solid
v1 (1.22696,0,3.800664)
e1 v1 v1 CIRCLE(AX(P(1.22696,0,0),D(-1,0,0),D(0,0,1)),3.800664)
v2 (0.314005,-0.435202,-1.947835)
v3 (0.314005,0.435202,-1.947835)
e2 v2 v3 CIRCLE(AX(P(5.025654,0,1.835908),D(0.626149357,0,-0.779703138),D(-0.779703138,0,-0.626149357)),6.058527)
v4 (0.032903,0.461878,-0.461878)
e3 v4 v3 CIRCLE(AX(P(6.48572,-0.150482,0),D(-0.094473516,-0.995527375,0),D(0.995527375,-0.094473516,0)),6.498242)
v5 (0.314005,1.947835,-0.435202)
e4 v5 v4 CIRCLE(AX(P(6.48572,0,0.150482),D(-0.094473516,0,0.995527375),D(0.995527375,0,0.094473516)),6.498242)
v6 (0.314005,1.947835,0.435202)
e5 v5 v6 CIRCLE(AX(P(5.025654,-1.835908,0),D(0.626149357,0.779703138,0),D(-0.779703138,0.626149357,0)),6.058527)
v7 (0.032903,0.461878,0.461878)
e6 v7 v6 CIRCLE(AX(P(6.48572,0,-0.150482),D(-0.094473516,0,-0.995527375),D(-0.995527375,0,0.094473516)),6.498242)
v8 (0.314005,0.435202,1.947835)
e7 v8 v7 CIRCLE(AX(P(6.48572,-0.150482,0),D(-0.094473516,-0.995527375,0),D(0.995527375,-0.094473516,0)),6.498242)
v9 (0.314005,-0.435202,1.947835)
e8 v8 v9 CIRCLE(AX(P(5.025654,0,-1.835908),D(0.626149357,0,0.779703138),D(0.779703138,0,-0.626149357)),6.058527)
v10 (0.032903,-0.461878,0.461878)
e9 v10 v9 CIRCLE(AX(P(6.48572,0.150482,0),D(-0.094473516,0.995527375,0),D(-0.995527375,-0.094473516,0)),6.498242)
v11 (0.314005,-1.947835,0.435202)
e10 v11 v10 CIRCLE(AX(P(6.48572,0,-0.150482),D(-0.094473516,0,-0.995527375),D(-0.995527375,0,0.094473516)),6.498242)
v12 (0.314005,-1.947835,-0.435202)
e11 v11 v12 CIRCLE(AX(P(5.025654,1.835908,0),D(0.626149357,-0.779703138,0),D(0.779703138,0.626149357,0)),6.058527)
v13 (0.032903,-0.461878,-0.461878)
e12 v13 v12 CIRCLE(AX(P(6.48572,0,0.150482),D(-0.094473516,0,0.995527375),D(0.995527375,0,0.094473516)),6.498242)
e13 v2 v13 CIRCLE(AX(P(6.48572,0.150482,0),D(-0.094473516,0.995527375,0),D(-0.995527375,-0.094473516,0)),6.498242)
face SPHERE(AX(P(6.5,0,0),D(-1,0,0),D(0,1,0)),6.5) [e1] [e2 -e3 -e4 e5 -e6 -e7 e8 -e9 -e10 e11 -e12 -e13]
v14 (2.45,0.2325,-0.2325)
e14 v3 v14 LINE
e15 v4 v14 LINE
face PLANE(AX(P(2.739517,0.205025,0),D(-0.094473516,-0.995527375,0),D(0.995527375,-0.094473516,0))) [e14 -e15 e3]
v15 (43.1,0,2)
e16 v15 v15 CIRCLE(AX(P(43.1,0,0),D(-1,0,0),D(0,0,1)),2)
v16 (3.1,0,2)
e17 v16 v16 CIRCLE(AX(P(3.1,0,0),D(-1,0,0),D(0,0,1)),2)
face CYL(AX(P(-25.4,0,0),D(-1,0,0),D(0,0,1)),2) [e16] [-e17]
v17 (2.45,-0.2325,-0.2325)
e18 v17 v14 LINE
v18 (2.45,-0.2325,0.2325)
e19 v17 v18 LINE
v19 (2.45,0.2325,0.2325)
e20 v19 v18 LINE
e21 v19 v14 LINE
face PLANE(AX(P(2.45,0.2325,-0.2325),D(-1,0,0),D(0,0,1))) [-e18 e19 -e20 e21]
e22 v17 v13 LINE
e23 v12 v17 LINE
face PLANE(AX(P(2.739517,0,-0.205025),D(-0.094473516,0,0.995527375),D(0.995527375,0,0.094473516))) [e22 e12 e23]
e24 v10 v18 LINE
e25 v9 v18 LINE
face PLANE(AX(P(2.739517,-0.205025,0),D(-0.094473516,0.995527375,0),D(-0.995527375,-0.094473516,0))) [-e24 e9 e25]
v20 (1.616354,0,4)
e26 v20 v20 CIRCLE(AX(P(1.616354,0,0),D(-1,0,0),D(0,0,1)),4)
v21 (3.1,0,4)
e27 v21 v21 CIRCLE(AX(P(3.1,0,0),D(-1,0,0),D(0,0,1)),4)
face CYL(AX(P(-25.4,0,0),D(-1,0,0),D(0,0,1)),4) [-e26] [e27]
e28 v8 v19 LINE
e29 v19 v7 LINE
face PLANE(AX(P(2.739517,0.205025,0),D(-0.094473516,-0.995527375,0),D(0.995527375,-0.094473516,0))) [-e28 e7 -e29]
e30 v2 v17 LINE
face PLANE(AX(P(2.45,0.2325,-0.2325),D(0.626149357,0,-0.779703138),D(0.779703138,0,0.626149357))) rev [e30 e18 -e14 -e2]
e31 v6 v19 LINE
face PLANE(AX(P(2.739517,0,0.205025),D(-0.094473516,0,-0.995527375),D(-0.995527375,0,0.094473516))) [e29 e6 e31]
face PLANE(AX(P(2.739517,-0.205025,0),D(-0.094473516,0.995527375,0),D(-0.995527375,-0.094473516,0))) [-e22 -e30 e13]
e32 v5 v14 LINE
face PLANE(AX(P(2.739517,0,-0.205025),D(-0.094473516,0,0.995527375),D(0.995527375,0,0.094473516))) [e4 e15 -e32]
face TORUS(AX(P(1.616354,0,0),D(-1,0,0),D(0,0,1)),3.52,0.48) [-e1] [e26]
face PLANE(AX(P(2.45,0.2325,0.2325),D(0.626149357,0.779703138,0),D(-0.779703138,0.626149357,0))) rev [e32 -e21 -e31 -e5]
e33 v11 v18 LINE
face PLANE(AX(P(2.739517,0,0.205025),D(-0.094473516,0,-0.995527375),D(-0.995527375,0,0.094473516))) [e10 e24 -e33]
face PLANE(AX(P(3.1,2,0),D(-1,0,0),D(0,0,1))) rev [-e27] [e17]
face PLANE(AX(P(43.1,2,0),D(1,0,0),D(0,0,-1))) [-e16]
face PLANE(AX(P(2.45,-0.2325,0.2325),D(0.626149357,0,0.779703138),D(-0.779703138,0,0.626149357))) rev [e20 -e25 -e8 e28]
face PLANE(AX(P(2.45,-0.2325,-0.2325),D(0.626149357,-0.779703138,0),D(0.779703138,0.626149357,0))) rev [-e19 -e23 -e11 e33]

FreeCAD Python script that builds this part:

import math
import FreeCAD as App
import Part
import Sketcher


def add_polygon(sketch, points):
    """Adds a closed chain of lines whose ends are joined by coincident constraints."""
    first, n = sketch.GeometryCount, len(points)
    for a, b in zip(points, points[1:] + points[:1]):
        sketch.addGeometry(Part.LineSegment(App.Vector(*a, 0), App.Vector(*b, 0)), False)
    for i in range(n):
        sketch.addConstraint(Sketcher.Constraint("Coincident", first + i, 2, first + (i + 1) % n, 1))

doc = App.newDocument("Part")
body = doc.addObject("PartDesign::Body", "Body")

# Sketch on XY plane
sketch1 = body.newObject("Sketcher::SketchObject", "Sketch")
sketch1.AttachmentSupport = (doc.getObject("XY_Plane"), [""])
sketch1.MapMode = "FlatFace"
sketch1.addGeometry([
    Part.LineSegment(App.Vector(3.1, 2, 0), App.Vector(3.1, 4, 0)),  # 0
    Part.LineSegment(App.Vector(3.1, 4, 0), App.Vector(1.62, 4, 0)),  # 1
    Part.ArcOfCircle(Part.Circle(App.Vector(1.62, 3.52, 0), App.Vector(0, 0, 1), 0.48), math.radians(90), math.radians(144)),  # 2
    Part.ArcOfCircle(Part.Circle(App.Vector(6.5, 0, 0), App.Vector(0, 0, 1), 6.5), math.radians(144), math.radians(180)),  # 3
    Part.LineSegment(App.Vector(0, 0, 0), App.Vector(43.1, 0, 0)),  # 4
    Part.LineSegment(App.Vector(43.1, 0, 0), App.Vector(43.1, 2, 0)),  # 5
    Part.LineSegment(App.Vector(43.1, 2, 0), App.Vector(3.1, 2, 0)),  # 6
], False)
sketch1.addConstraint([
    Sketcher.Constraint("Coincident", 0, 2, 1, 1),
    Sketcher.Constraint("Tangent", 1, 2, 2, 1),
    Sketcher.Constraint("Tangent", 2, 2, 3, 1),
    Sketcher.Constraint("Coincident", 3, 2, 4, 1),
    Sketcher.Constraint("Coincident", 4, 2, 5, 1),
    Sketcher.Constraint("Coincident", 5, 2, 6, 1),
    Sketcher.Constraint("Coincident", 6, 2, 0, 1),
    Sketcher.Constraint("Vertical", 0),
    Sketcher.Constraint("Horizontal", 1),
    Sketcher.Constraint("Horizontal", 4),
    Sketcher.Constraint("Vertical", 5),
    Sketcher.Constraint("Horizontal", 6),
    Sketcher.Constraint("Coincident", 3, 2, -1, 1),
    Sketcher.Constraint("PointOnObject", 3, 3, -1),
    Sketcher.Constraint("Equal", 0, 5),
    Sketcher.Constraint("Radius", 3, 6.5),
    Sketcher.Constraint("DistanceX", 6, 2, 6, 1, 40.0),
    Sketcher.Constraint("DistanceY", 0, 1, 0, 2, 2.0),
    Sketcher.Constraint("Radius", 2, 0.48),
    Sketcher.Constraint("DistanceX", 4, 1, 4, 2, 43.1),
])
revolution = body.newObject("PartDesign::Revolution", "Revolution")
revolution.Profile = sketch1
revolution.ReferenceAxis = (sketch1, ["H_Axis"])
revolution.Angle = 360

# Sketch on YZ plane
sketch2 = body.newObject("Sketcher::SketchObject", "Sketch001")
sketch2.AttachmentSupport = (doc.getObject("YZ_Plane"), [""])
sketch2.MapMode = "FlatFace"
add_polygon(sketch2, [(2.2, 0.5), (-2.2, 0.5), (-2.2, -0.5), (2.2, -0.5)])  # lines 0-3
sketch2.addConstraint([
    Sketcher.Constraint("Horizontal", 0),
    Sketcher.Constraint("Vertical", 1),
    Sketcher.Constraint("Horizontal", 2),
    Sketcher.Constraint("Vertical", 3),
    Sketcher.Constraint("Symmetric", 0, 2, 2, 2, -1, 1),
    Sketcher.Constraint("DistanceX", 0, 2, 0, 1, 4.4),
    Sketcher.Constraint("DistanceY", 1, 2, 1, 1, 0.93),
])

# Sketch on YZ plane
sketch3 = body.newObject("Sketcher::SketchObject", "Sketch002")
sketch3.AttachmentSupport = (doc.getObject("YZ_Plane"), [""])
sketch3.MapMode = "FlatFace"
sketch3.AttachmentOffset = App.Placement(App.Vector(0, 0, 2.45), App.Rotation())
add_polygon(sketch3, [(0.23, 0.23), (-0.23, 0.23), (-0.23, -0.23), (0.23, -0.23)])  # lines 0-3
sketch3.addConstraint([
    Sketcher.Constraint("Horizontal", 0),
    Sketcher.Constraint("Vertical", 1),
    Sketcher.Constraint("Horizontal", 2),
    Sketcher.Constraint("Vertical", 3),
    Sketcher.Constraint("Symmetric", 0, 2, 2, 2, -1, 1),
    Sketcher.Constraint("Equal", 2, 1),
    Sketcher.Constraint("DistanceX", 0, 2, 0, 1, 0.465),
])

subtractiveloft = body.newObject("PartDesign::SubtractiveLoft", "SubtractiveLoft")
subtractiveloft.Profile = sketch2
subtractiveloft.Sections = [sketch3]
doc.recompute()

polarpattern = body.newObject("PartDesign::PolarPattern", "PolarPattern")
polarpattern.Originals = [subtractiveloft]
polarpattern.Axis = (doc.getObject("X_Axis"), [""])
polarpattern.Angle = 90
polarpattern.Occurrences = 2
body.Tip = polarpattern

doc.recompute()
